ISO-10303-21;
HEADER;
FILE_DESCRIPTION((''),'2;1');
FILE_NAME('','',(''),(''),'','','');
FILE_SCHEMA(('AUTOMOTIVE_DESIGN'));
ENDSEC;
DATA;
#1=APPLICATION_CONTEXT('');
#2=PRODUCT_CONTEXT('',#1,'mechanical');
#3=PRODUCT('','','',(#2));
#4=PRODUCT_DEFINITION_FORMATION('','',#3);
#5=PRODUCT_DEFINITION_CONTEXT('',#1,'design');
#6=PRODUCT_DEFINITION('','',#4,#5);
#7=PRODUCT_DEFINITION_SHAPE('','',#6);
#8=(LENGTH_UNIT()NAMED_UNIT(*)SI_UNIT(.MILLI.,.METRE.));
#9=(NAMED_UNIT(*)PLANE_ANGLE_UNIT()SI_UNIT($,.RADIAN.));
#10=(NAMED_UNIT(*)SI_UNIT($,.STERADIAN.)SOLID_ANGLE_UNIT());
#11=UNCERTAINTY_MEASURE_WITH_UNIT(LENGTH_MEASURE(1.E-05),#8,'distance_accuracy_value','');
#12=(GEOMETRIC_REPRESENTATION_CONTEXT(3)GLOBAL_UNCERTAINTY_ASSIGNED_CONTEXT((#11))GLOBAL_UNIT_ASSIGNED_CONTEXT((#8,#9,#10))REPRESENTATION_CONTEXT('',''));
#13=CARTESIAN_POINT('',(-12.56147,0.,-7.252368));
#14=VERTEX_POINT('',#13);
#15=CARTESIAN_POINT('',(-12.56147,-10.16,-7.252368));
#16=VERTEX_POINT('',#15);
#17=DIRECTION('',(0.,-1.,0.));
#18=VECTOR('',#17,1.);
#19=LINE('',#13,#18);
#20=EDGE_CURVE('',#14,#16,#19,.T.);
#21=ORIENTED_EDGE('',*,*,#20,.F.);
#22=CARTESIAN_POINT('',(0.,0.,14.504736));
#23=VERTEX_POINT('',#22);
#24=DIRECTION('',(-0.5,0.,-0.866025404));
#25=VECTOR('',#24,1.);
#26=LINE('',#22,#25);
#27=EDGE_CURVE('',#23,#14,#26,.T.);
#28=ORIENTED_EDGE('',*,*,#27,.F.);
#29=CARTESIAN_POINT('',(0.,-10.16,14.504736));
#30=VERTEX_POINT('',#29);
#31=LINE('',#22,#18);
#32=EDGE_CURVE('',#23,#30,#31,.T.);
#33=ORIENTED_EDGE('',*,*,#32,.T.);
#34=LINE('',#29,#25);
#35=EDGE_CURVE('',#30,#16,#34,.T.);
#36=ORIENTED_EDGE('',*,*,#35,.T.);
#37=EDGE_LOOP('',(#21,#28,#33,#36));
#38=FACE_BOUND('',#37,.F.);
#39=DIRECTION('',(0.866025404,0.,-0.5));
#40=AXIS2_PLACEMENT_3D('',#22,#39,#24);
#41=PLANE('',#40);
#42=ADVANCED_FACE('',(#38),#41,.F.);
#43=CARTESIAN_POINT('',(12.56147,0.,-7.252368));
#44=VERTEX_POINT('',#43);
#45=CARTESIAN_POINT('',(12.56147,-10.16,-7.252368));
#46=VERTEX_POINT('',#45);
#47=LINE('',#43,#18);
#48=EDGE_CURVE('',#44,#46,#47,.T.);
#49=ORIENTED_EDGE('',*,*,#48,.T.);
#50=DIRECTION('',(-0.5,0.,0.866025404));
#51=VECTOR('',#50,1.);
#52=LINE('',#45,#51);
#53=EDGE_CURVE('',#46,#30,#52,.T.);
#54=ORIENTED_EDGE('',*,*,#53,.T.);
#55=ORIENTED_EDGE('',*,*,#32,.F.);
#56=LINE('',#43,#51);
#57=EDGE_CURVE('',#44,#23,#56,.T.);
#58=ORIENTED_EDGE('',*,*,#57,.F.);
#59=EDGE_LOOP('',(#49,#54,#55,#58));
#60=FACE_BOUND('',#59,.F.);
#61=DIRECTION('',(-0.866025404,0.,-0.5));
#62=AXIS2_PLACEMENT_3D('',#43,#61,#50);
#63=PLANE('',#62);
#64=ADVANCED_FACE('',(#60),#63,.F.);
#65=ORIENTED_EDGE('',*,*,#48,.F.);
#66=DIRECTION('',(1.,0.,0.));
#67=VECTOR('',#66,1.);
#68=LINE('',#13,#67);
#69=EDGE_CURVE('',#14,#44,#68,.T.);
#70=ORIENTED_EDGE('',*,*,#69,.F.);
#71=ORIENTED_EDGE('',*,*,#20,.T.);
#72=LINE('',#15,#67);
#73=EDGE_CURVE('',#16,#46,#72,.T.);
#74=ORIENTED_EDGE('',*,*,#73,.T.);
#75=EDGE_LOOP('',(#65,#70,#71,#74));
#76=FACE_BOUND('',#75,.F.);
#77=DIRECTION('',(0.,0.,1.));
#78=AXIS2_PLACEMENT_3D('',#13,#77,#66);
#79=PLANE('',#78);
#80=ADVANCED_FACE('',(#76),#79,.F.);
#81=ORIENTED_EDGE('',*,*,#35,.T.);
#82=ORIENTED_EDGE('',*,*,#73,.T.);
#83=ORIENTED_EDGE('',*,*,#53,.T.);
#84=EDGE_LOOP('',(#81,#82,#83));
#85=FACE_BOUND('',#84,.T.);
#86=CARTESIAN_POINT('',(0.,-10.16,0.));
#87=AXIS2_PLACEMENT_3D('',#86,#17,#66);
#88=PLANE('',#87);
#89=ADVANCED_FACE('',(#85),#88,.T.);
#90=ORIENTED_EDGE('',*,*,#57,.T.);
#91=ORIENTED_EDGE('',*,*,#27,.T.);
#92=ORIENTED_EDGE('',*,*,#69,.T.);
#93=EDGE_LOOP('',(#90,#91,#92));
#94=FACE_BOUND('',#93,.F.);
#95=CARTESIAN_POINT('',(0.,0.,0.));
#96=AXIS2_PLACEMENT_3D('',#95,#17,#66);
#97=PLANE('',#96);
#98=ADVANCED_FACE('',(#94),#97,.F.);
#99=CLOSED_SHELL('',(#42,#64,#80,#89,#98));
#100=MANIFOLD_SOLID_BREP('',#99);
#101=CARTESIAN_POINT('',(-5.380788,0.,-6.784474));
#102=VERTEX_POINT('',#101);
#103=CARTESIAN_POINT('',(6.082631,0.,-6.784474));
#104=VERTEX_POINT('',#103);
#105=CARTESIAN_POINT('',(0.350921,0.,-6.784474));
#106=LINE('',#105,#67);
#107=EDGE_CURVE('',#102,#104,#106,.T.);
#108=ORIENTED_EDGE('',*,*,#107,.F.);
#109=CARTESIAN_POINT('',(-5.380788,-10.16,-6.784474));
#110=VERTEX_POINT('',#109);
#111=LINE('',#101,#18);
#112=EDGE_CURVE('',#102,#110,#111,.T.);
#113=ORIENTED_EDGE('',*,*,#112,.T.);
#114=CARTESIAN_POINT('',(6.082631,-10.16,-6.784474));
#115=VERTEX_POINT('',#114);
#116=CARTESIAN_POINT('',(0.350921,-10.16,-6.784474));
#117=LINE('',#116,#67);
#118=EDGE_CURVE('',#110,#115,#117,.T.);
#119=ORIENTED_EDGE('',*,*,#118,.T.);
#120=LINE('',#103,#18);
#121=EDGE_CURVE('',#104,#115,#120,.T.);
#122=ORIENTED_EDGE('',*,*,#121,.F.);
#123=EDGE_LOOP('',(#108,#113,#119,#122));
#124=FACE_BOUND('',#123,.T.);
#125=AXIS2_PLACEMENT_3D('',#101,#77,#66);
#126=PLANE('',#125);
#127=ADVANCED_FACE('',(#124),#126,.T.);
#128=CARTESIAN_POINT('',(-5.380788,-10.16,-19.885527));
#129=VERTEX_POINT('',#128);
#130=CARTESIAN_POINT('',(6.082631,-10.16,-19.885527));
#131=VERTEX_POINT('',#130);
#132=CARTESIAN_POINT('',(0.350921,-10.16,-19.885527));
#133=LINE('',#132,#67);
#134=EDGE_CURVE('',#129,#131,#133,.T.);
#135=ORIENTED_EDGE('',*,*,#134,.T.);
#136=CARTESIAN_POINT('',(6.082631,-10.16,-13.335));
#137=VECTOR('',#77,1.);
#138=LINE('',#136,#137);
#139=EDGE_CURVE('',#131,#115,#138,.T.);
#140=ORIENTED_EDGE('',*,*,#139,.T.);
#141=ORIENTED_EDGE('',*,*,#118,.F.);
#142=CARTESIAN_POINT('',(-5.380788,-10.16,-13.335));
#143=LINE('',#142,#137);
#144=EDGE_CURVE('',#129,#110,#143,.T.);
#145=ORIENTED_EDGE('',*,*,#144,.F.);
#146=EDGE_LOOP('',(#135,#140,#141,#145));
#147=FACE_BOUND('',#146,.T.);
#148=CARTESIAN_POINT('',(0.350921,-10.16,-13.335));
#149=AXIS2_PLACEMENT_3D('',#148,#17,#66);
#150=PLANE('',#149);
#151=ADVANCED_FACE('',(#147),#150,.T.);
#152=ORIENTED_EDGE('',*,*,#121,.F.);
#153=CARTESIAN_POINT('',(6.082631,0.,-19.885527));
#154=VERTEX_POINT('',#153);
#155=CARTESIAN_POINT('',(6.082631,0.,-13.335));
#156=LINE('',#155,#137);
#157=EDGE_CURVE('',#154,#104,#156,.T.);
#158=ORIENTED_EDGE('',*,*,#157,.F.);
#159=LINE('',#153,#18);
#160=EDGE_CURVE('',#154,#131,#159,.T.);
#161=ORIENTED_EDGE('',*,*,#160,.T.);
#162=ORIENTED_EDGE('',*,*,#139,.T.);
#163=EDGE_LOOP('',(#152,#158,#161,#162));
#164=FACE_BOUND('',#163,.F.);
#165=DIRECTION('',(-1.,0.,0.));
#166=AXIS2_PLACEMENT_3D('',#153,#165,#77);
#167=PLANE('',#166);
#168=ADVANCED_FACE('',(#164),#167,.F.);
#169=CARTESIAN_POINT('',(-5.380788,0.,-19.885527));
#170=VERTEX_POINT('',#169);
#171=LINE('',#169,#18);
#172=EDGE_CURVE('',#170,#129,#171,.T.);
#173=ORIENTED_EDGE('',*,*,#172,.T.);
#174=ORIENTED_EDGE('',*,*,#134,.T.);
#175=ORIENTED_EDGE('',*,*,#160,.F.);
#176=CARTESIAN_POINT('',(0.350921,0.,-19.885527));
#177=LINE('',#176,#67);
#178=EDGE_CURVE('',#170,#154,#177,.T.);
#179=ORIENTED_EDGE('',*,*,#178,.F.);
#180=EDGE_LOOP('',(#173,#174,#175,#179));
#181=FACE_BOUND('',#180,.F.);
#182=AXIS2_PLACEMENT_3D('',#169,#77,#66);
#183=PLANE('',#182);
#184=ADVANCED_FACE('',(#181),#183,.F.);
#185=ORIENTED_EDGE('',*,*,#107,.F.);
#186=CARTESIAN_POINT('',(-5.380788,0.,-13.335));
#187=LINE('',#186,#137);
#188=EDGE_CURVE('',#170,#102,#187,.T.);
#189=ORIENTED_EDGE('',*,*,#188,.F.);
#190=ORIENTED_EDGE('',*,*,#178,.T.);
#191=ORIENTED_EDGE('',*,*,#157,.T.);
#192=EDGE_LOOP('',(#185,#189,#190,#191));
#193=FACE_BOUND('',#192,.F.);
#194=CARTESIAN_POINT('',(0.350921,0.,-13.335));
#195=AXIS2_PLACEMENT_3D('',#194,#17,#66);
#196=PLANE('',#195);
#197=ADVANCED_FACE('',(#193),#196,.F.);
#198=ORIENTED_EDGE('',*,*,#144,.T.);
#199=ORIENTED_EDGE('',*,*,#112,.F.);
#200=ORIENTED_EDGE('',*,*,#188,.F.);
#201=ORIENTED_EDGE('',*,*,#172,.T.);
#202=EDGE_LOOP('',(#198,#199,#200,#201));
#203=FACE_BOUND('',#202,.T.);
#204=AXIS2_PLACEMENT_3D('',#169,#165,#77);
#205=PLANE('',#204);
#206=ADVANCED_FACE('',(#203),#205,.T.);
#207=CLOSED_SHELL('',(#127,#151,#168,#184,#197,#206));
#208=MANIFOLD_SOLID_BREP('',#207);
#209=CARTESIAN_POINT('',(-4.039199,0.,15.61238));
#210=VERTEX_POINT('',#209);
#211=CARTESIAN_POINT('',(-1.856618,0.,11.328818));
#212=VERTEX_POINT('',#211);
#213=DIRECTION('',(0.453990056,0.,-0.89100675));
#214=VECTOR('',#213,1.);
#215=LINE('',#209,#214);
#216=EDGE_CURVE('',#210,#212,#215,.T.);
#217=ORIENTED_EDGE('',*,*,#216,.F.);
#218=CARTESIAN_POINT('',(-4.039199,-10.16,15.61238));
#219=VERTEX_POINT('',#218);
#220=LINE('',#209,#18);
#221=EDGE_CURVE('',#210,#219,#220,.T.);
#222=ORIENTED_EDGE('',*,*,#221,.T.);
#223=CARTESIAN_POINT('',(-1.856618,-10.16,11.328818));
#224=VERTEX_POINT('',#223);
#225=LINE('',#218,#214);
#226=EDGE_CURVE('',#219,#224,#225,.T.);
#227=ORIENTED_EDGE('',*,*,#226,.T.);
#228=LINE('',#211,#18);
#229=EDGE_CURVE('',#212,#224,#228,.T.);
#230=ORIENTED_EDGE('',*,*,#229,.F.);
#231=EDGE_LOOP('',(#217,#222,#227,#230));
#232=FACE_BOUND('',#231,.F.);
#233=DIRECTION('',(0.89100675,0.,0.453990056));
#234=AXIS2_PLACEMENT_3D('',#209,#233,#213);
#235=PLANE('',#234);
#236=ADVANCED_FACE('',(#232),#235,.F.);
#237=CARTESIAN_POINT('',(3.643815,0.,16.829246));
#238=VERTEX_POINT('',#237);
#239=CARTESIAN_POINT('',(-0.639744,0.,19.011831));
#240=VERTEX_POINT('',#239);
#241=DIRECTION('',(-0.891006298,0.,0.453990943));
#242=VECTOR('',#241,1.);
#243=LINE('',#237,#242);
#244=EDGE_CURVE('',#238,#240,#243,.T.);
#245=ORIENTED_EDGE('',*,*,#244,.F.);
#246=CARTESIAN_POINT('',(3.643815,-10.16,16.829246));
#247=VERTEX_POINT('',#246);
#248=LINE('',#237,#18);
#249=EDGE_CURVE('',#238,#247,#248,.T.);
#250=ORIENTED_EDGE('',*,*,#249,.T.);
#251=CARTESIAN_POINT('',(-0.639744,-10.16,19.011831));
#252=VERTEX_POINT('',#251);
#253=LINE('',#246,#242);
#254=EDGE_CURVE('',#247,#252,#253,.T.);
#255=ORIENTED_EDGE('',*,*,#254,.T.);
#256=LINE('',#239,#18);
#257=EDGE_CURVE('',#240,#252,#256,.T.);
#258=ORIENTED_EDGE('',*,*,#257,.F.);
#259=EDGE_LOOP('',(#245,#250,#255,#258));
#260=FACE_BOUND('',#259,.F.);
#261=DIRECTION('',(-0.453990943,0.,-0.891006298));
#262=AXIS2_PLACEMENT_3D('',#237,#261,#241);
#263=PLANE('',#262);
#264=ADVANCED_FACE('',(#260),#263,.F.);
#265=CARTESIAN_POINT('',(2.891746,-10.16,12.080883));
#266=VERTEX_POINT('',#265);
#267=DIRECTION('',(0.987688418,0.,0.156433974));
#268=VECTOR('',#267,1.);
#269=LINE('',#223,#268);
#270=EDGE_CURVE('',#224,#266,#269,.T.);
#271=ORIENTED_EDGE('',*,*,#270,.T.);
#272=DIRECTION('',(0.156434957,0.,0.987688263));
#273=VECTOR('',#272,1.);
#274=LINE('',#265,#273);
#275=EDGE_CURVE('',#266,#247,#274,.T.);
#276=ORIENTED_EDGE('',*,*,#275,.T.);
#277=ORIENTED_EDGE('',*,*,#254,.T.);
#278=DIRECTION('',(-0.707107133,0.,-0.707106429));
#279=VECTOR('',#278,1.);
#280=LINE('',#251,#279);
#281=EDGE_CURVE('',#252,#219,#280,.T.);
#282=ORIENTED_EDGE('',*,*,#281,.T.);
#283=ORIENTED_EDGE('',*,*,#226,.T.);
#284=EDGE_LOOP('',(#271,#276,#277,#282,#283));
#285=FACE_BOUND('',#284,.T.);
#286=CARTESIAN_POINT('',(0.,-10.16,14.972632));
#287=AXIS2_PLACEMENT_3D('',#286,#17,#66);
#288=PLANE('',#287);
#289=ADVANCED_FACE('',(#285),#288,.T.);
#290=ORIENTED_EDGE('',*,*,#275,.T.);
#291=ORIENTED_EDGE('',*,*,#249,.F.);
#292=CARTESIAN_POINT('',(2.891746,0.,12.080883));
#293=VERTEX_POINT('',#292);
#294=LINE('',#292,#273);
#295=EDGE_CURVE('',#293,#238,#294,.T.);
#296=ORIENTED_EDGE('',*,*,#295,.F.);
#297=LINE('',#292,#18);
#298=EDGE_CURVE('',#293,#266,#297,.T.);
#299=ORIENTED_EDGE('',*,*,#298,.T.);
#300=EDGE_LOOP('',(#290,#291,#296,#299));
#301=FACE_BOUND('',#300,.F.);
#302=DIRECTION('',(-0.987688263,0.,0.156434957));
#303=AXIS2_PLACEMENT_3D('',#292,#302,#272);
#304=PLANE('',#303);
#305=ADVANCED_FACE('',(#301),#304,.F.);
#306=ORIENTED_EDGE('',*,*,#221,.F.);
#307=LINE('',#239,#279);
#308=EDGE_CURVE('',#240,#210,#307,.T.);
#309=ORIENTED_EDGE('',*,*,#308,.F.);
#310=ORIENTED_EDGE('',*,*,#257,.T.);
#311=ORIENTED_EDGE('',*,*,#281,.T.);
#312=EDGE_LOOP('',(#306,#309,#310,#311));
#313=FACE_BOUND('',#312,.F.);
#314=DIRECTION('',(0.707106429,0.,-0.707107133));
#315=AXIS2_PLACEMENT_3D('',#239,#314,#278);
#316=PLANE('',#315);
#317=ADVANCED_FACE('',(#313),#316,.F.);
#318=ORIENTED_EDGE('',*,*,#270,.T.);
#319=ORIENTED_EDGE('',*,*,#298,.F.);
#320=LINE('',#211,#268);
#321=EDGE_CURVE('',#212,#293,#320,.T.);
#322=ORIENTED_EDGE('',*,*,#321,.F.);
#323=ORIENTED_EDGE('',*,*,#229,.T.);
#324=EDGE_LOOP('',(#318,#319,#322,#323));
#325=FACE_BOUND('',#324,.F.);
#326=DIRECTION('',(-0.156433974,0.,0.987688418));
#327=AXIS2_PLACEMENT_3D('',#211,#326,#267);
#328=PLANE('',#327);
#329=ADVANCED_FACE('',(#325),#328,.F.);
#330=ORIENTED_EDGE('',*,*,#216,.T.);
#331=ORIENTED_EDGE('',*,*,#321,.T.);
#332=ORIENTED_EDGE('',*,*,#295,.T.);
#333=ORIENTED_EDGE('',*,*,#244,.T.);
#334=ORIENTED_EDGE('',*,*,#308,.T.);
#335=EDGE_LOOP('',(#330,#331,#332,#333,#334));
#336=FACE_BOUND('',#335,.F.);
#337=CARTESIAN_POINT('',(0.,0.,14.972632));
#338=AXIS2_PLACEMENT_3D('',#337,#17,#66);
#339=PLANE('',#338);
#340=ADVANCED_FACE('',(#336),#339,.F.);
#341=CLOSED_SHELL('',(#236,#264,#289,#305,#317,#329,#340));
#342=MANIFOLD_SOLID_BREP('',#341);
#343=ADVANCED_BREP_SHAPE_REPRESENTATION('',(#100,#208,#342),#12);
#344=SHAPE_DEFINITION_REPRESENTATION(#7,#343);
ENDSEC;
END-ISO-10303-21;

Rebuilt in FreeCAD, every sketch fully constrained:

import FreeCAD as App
import Part
import Sketcher

V = App.Vector
Q = App.Units.Quantity


def add_polygon(sketch, points):
    """Adds a closed chain of lines whose ends are joined by coincident constraints."""
    first, n = sketch.GeometryCount, len(points)
    for a, b in zip(points, points[1:] + points[:1]):
        sketch.addGeometry(Part.LineSegment(App.Vector(*a, 0), App.Vector(*b, 0)), False)
    for i in range(n):
        sketch.addConstraint(Sketcher.Constraint("Coincident", first + i, 2, first + (i + 1) % n, 1))

doc = App.newDocument("Part")
body = doc.addObject("PartDesign::Body", "Body")

sketch1 = doc.addObject("Sketcher::SketchObject", "Sketch")
body.addObject(sketch1)
sketch1.AttachmentSupport = (doc.XZ_Plane, [""])
sketch1.MapMode = "FlatFace"
add_polygon(sketch1, [(-5, -7), (-5, -20), (6, -20), (6, -7)])
sketch1.addConstraint([
    Sketcher.Constraint("Vertical", 0),
    Sketcher.Constraint("Horizontal", 1),
    Sketcher.Constraint("Vertical", 2),
    Sketcher.Constraint("Horizontal", 3),
    Sketcher.Constraint("DistanceX", 1, 1, 1, 2, 11.463419),
    Sketcher.Constraint("DistanceY", 0, 2, 0, 1, 13.101053),
    Sketcher.Constraint("DistanceX", -1, 1, 1, 2, 6.082631),
    Sketcher.Constraint("DistanceY", 0, 2, -1, 1, 19.885527),
])
pad1 = doc.addObject("PartDesign::Pad", "Pad")
body.addObject(pad1)
pad1.Profile = sketch1
pad1.Length = Q("0.4 in")
body2 = doc.addObject("PartDesign::Body", "Body001")

sketch2 = doc.addObject("Sketcher::SketchObject", "Sketch001")
body2.addObject(sketch2)
sketch2.AttachmentSupport = (doc.getObject("XZ_Plane001"), [""])
sketch2.MapMode = "FlatFace"
add_polygon(sketch2, [(-0.6, 19), (-4, 15.6), (-1.9, 11.3), (2.9, 12.1), (3.6, 16.8)])
sketch2.addConstraint([
    Sketcher.Constraint("Equal", 0, 1),
    Sketcher.Constraint("Equal", 1, 2),
    Sketcher.Constraint("Equal", 2, 3),
    Sketcher.Constraint("Equal", 3, 4),
    Sketcher.Constraint("DistanceX", 0, 2, -1, 1, 4.039199),
    Sketcher.Constraint("DistanceY", -1, 1, 0, 2, 15.61238),
    Sketcher.Constraint("DistanceY", -1, 1, 1, 2, 11.328818),
    Sketcher.Constraint("DistanceY", -1, 1, 4, 2, 19.011831),
    Sketcher.Constraint("DistanceX", 0, 2, 1, 2, 2.182581),
    Sketcher.Constraint("DistanceX", 2, 2, 3, 2, 0.752069),
])
pad2 = doc.addObject("PartDesign::Pad", "Pad001")
body2.addObject(pad2)
pad2.Profile = sketch2
pad2.Length = Q("0.4 in")
body3 = doc.addObject("PartDesign::Body", "Body002")

sketch3 = doc.addObject("Sketcher::SketchObject", "Sketch002")
body3.addObject(sketch3)
sketch3.AttachmentSupport = (doc.getObject("XZ_Plane002"), [""])
sketch3.MapMode = "FlatFace"
add_polygon(sketch3, [(-13, -7), (13, -7), (0, 15)])
sketch3.addConstraint([
    Sketcher.Constraint("Horizontal", 0),
    Sketcher.Constraint("PointOnObject", 1, 2, -2),
    Sketcher.Constraint("Equal", 1, 2),
    Sketcher.Constraint("Angle", 1, Q("120 deg")),
    Sketcher.Constraint("DistanceX", 0, 1, 0, 2, 25.12294),
    Sketcher.Constraint("DistanceY", 0, 2, -1, 1, 7.252368),
])
pad3 = doc.addObject("PartDesign::Pad", "Pad002")
body3.addObject(pad3)
pad3.Profile = sketch3
pad3.Length = Q("0.4 in")

doc.recompute()
